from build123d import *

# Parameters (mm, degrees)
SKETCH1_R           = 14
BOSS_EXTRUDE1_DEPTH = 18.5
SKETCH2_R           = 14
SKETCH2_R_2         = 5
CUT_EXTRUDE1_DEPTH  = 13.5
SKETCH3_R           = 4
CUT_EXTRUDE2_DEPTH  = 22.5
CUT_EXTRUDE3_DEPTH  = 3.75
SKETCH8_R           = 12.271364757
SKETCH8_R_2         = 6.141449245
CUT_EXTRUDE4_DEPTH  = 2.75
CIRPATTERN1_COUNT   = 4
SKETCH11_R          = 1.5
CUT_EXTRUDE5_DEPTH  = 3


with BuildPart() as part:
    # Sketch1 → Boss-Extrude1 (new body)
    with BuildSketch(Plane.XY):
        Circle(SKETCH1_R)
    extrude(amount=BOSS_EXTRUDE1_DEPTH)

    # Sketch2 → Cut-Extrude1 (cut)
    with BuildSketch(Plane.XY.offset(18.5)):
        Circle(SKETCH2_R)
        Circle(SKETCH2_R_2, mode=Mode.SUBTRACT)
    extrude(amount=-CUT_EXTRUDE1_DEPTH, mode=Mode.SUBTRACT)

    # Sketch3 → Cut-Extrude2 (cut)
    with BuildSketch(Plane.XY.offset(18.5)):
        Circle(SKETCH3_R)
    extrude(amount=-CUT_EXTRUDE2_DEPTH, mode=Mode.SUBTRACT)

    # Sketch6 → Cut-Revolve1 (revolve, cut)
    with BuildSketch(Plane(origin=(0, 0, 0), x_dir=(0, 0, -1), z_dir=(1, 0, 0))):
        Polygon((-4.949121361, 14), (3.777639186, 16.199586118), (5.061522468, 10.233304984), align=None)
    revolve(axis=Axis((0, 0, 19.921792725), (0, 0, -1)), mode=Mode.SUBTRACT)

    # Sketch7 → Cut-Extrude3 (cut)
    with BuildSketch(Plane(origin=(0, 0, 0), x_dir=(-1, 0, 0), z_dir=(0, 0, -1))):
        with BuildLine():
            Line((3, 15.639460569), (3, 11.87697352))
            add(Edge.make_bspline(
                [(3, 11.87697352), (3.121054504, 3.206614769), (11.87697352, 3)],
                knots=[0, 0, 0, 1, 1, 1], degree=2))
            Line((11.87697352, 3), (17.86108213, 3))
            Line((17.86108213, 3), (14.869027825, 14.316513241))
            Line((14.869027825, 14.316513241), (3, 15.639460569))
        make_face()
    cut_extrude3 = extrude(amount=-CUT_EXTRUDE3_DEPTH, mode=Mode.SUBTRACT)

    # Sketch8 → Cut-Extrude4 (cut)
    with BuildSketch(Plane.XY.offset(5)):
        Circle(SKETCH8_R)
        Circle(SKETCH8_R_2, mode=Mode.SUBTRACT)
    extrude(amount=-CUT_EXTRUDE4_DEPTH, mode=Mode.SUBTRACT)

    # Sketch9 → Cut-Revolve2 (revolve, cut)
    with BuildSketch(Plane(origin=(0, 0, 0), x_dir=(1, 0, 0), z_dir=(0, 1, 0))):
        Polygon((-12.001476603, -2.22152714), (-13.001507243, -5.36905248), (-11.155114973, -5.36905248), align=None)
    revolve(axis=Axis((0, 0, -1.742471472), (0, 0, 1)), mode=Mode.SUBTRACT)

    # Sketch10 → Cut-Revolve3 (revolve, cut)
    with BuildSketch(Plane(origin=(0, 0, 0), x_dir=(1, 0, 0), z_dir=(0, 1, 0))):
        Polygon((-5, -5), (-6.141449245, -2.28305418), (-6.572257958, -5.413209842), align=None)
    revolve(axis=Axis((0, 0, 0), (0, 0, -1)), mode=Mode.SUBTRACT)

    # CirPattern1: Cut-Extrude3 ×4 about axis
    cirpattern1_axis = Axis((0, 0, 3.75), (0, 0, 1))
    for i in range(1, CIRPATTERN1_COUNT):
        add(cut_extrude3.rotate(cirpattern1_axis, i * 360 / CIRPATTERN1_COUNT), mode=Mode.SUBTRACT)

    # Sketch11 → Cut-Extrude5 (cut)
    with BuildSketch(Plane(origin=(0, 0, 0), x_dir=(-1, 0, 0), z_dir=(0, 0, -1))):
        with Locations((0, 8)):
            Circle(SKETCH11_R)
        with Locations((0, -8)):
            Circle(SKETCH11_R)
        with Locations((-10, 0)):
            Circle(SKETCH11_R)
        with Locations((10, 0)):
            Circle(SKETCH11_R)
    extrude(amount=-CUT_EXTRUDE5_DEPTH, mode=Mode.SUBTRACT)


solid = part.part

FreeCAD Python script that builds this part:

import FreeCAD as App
import Part
import Sketcher
Q = App.Units.Quantity


def add_polygon(sketch, points):
    """Adds a closed chain of lines whose ends are joined by coincident constraints."""
    first, n = sketch.GeometryCount, len(points)
    for a, b in zip(points, points[1:] + points[:1]):
        sketch.addGeometry(Part.LineSegment(App.Vector(*a, 0), App.Vector(*b, 0)), False)
    for i in range(n):
        sketch.addConstraint(Sketcher.Constraint("Coincident", first + i, 2, first + (i + 1) % n, 1))

doc = App.newDocument("Part")
body = doc.addObject("PartDesign::Body", "Body")

# Sketch on XY plane
sketch1 = body.newObject("Sketcher::SketchObject", "Sketch")
sketch1.AttachmentSupport = (doc.getObject("XY_Plane"), [""])
sketch1.MapMode = "FlatFace"
sketch1.addGeometry(Part.Circle(App.Vector(0, 0, 0), App.Vector(0, 0, 1), 14), False)
sketch1.addConstraint([
    Sketcher.Constraint("Coincident", 0, 3, -1, 1),
    Sketcher.Constraint("Diameter", 0, Q("28 mm")),
])
pad1 = body.newObject("PartDesign::Pad", "Pad")
pad1.Profile = sketch1
pad1.Length = 18.5

# Sketch on XY plane
sketch2 = body.newObject("Sketcher::SketchObject", "Sketch001")
sketch2.AttachmentSupport = (doc.getObject("XY_Plane"), [""])
sketch2.MapMode = "FlatFace"
sketch2.AttachmentOffset = App.Placement(App.Vector(0, 0, 18.5), App.Rotation())
sketch2.addGeometry([
    Part.Circle(App.Vector(0, 0, 0), App.Vector(0, 0, 1), 14),
    Part.Circle(App.Vector(0, 0, 0), App.Vector(0, 0, 1), 5),
], False)
sketch2.addConstraint([
    Sketcher.Constraint("Coincident", 0, 3, -1, 1),
    Sketcher.Constraint("Coincident", 1, 3, -1, 1),
    Sketcher.Constraint("Diameter", 0, Q("28 mm")),
    Sketcher.Constraint("Diameter", 1, Q("10 mm")),
])
pocket1 = body.newObject("PartDesign::Pocket", "Pocket")
pocket1.Profile = sketch2
pocket1.Length = 13.5

# Sketch on XY plane
sketch3 = body.newObject("Sketcher::SketchObject", "Sketch002")
sketch3.AttachmentSupport = (doc.getObject("XY_Plane"), [""])
sketch3.MapMode = "FlatFace"
sketch3.AttachmentOffset = App.Placement(App.Vector(0, 0, 18.5), App.Rotation())
sketch3.addGeometry(Part.Circle(App.Vector(0, 0, 0), App.Vector(0, 0, 1), 4), False)
sketch3.addConstraint([
    Sketcher.Constraint("Coincident", 0, 3, -1, 1),
    Sketcher.Constraint("Diameter", 0, Q("8 mm")),
])
pocket2 = body.newObject("PartDesign::Pocket", "Pocket001")
pocket2.Profile = sketch3
pocket2.Length = 22.5

# Sketch on YZ plane
sketch4 = body.newObject("Sketcher::SketchObject", "Sketch003")
sketch4.AttachmentSupport = (doc.getObject("YZ_Plane"), [""])
sketch4.MapMode = "FlatFace"
add_polygon(sketch4, [(16, -4), (14, 5), (10, -5)])  # lines 0-2
sketch4.addConstraint([
    Sketcher.Constraint("DistanceX", -1, 1, 0, 2, Q("14 mm")),
    Sketcher.Constraint("Distance", 1, Q("10.695839 mm")),
    Sketcher.Constraint("DistanceY", -1, 1, 0, 2, Q("4.949121 mm")),
    Sketcher.Constraint("DistanceY", 2, 2, -1, 1, Q("3.777639 mm")),
    Sketcher.Constraint("DistanceX", 1, 2, 2, 2, Q("5.966281 mm")),
    Sketcher.Constraint("Distance", 0, Q("8.999696 mm")),
])
groove = body.newObject("PartDesign::Groove", "Groove")
groove.Profile = sketch4
groove.ReferenceAxis = (sketch4, ["V_Axis"])
groove.Angle = 360

# Sketch on XY plane
sketch5 = body.newObject("Sketcher::SketchObject", "Sketch004")
sketch5.AttachmentSupport = (doc.getObject("XY_Plane"), [""])
sketch5.MapMode = "FlatFace"
sketch5.addGeometry([
    Part.LineSegment(App.Vector(-3, 15.639461, 0), App.Vector(-3, 11.876974, 0)),  # 0
    Part.BSplineCurve([App.Vector(-3, 11.876974, 0), App.Vector(-3.121055, 3.206615, 0), App.Vector(-11.876974, 3, 0)], [3, 3], [0, 1], False, 2, [1, 1, 1], False),  # 1
    Part.LineSegment(App.Vector(-11.876974, 3, 0), App.Vector(-17.861082, 3, 0)),  # 2
    Part.LineSegment(App.Vector(-17.861082, 3, 0), App.Vector(-14.869028, 14.316513, 0)),  # 3
    Part.LineSegment(App.Vector(-14.869028, 14.316513, 0), App.Vector(-3, 15.639461, 0)),  # 4
], False)
sketch5.addConstraint([
    Sketcher.Constraint("Block", 1),
    Sketcher.Constraint("Coincident", 0, 2, 1, 1),
    Sketcher.Constraint("Coincident", 1, 2, 2, 1),
    Sketcher.Constraint("Coincident", 2, 2, 3, 1),
    Sketcher.Constraint("Coincident", 3, 2, 4, 1),
    Sketcher.Constraint("Coincident", 4, 2, 0, 1),
    Sketcher.Constraint("Vertical", 0),
    Sketcher.Constraint("Horizontal", 2),
    Sketcher.Constraint("DistanceX", 2, 2, 2, 1, Q("5.984109 mm")),
    Sketcher.Constraint("Distance", 4, Q("11.94253 mm")),
    Sketcher.Constraint("DistanceY", 0, 2, 0, 1, Q("3.762487 mm")),
    Sketcher.Constraint("DistanceY", 0, 2, 3, 2, Q("2.43954 mm")),
])
pocket3 = body.newObject("PartDesign::Pocket", "Pocket002")
pocket3.Profile = sketch5
pocket3.Length = 3.75
pocket3.Reversed = True

# Sketch on XY plane
sketch6 = body.newObject("Sketcher::SketchObject", "Sketch005")
sketch6.AttachmentSupport = (doc.getObject("XY_Plane"), [""])
sketch6.MapMode = "FlatFace"
sketch6.AttachmentOffset = App.Placement(App.Vector(0, 0, 5), App.Rotation())
sketch6.addGeometry([
    Part.Circle(App.Vector(0, 0, 0), App.Vector(0, 0, 1), 12),
    Part.Circle(App.Vector(0, 0, 0), App.Vector(0, 0, 1), 6),
], False)
sketch6.addConstraint([
    Sketcher.Constraint("Coincident", 0, 3, -1, 1),
    Sketcher.Constraint("Coincident", 1, 3, -1, 1),
    Sketcher.Constraint("Diameter", 1, Q("12.282898 mm")),
    Sketcher.Constraint("Diameter", 0, Q("24.54273 mm")),
])
pocket4 = body.newObject("PartDesign::Pocket", "Pocket003")
pocket4.Profile = sketch6
pocket4.Length = 2.75

# Sketch on XZ plane
sketch7 = body.newObject("Sketcher::SketchObject", "Sketch006")
sketch7.AttachmentSupport = (doc.getObject("XZ_Plane"), [""])
sketch7.MapMode = "FlatFace"
add_polygon(sketch7, [(-12, 2.2), (-13, 5.4), (-11.2, 5.4)])  # lines 0-2
sketch7.addConstraint([
    Sketcher.Constraint("Horizontal", 1),
    Sketcher.Constraint("Distance", 0, Q("3.302571 mm")),
    Sketcher.Constraint("Distance", 2, Q("3.259332 mm")),
    Sketcher.Constraint("DistanceX", 1, 1, 1, 2, Q("1.846392 mm")),
    Sketcher.Constraint("DistanceX", 0, 2, -1, 1, Q("13.001507 mm")),
    Sketcher.Constraint("DistanceY", -1, 1, 0, 2, Q("5.369052 mm")),
])
groove2 = body.newObject("PartDesign::Groove", "Groove001")
groove2.Profile = sketch7
groove2.ReferenceAxis = (sketch7, ["V_Axis"])
groove2.Angle = 360

# Sketch on XZ plane
sketch8 = body.newObject("Sketcher::SketchObject", "Sketch007")
sketch8.AttachmentSupport = (doc.getObject("XZ_Plane"), [""])
sketch8.MapMode = "FlatFace"
add_polygon(sketch8, [(-5, 5), (-6.1, 2.3), (-6.6, 5.4)])  # lines 0-2
sketch8.addConstraint([
    Sketcher.Constraint("DistanceX", 2, 2, -1, 1, Q("5 mm")),
    Sketcher.Constraint("DistanceY", -1, 1, 2, 2, Q("5 mm")),
    Sketcher.Constraint("Distance", 0, Q("2.946982 mm")),
    Sketcher.Constraint("Distance", 2, Q("1.62565 mm")),
    Sketcher.Constraint("DistanceX", 0, 2, -1, 1, Q("6.141449 mm")),
    Sketcher.Constraint("DistanceY", -1, 1, 1, 2, Q("5.41321 mm")),
])
groove3 = body.newObject("PartDesign::Groove", "Groove002")
groove3.Profile = sketch8
groove3.ReferenceAxis = (sketch8, ["V_Axis"])
groove3.Angle = 360
doc.recompute()

polarpattern = body.newObject("PartDesign::PolarPattern", "PolarPattern")
polarpattern.Originals = [pocket3]
polarpattern.Axis = (doc.getObject("Z_Axis"), [""])
polarpattern.Angle = 360
polarpattern.Occurrences = 4
body.Tip = polarpattern

# Sketch on XY plane
sketch9 = body.newObject("Sketcher::SketchObject", "Sketch008")
sketch9.AttachmentSupport = (doc.getObject("XY_Plane"), [""])
sketch9.MapMode = "FlatFace"
sketch9.addGeometry([
    Part.Circle(App.Vector(0, 8, 0), App.Vector(0, 0, 1), 1.5),
    Part.Circle(App.Vector(0, -8, 0), App.Vector(0, 0, 1), 1.5),
    Part.Circle(App.Vector(10, 0, 0), App.Vector(0, 0, 1), 1.5),
    Part.Circle(App.Vector(-10, 0, 0), App.Vector(0, 0, 1), 1.5),
], False)
sketch9.addConstraint([
    Sketcher.Constraint("Equal", 0, 1),
    Sketcher.Constraint("Equal", 1, 2),
    Sketcher.Constraint("Equal", 2, 3),
    Sketcher.Constraint("Symmetric", 0, 3, 1, 3, -1, 1),
    Sketcher.Constraint("Symmetric", 2, 3, 3, 3, -1, 1),
    Sketcher.Constraint("PointOnObject", 0, 3, -2),
    Sketcher.Constraint("PointOnObject", 2, 3, -1),
    Sketcher.Constraint("Diameter", 0, Q("3 mm")),
    Sketcher.Constraint("DistanceY", -1, 1, 0, 3, Q("8 mm")),
    Sketcher.Constraint("DistanceX", -1, 1, 2, 3, Q("10 mm")),
])
pocket5 = body.newObject("PartDesign::Pocket", "Pocket004")
pocket5.Profile = sketch9
pocket5.Length = 3
pocket5.Reversed = True

doc.recompute()
